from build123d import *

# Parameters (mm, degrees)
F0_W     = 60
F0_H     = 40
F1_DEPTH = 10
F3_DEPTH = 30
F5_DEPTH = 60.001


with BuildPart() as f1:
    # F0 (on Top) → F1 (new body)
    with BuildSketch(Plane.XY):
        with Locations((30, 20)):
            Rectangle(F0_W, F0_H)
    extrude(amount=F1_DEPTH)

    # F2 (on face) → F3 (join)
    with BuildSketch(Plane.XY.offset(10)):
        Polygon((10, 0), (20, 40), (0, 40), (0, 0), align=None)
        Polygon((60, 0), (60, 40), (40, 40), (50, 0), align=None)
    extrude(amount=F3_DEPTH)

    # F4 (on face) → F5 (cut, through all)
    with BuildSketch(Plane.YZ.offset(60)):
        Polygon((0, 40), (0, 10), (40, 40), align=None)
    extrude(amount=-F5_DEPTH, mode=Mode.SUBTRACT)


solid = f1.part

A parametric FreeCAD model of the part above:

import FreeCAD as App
import Part
import Sketcher

V = App.Vector
Q = App.Units.Quantity

doc = App.newDocument("Part")
body = doc.addObject("PartDesign::Body", "Body")

# Sketch on XY plane
sketch1 = body.newObject("Sketcher::SketchObject", "Sketch")
sketch1.AttachmentSupport = (doc.getObject("XY_Plane"), [""])
sketch1.MapMode = "FlatFace"
sketch1.addGeometry(Part.LineSegment(V(0, 40, 0), V(0, 0, 0)), False)
sketch1.addGeometry(Part.LineSegment(V(0, 0, 0), V(60, 0, 0)), False)
sketch1.addGeometry(Part.LineSegment(V(60, 0, 0), V(60, 40, 0)), False)
sketch1.addGeometry(Part.LineSegment(V(60, 40, 0), V(0, 40, 0)), False)
sketch1.addConstraint(Sketcher.Constraint("Coincident", 0, 2, 1, 1))
sketch1.addConstraint(Sketcher.Constraint("Coincident", 1, 2, 2, 1))
sketch1.addConstraint(Sketcher.Constraint("Coincident", 2, 2, 3, 1))
sketch1.addConstraint(Sketcher.Constraint("Coincident", 3, 2, 0, 1))
sketch1.addConstraint(Sketcher.Constraint("Vertical", 0))
sketch1.addConstraint(Sketcher.Constraint("Horizontal", 1))
sketch1.addConstraint(Sketcher.Constraint("Vertical", 2))
sketch1.addConstraint(Sketcher.Constraint("Horizontal", 3))
sketch1.addConstraint(Sketcher.Constraint("Coincident", 0, 2, -1, 1))
sketch1.addConstraint(Sketcher.Constraint("DistanceX", 1, 1, 1, 2, Q("60 mm")))
sketch1.addConstraint(Sketcher.Constraint("DistanceY", 0, 2, 0, 1, Q("40 mm")))
pad1 = body.newObject("PartDesign::Pad", "Pad")
pad1.Profile = sketch1
pad1.Length = 10

# Sketch on XY plane
sketch2 = body.newObject("Sketcher::SketchObject", "Sketch001")
sketch2.AttachmentSupport = (doc.getObject("XY_Plane"), [""])
sketch2.MapMode = "FlatFace"
sketch2.AttachmentOffset = App.Placement(V(0, 0, 10), App.Rotation())
sketch2.addGeometry(Part.LineSegment(V(10, 0, 0), V(20, 40, 0)), False)
sketch2.addGeometry(Part.LineSegment(V(20, 40, 0), V(0, 40, 0)), False)
sketch2.addGeometry(Part.LineSegment(V(0, 40, 0), V(0, 0, 0)), False)
sketch2.addGeometry(Part.LineSegment(V(0, 0, 0), V(10, 0, 0)), False)
sketch2.addGeometry(Part.LineSegment(V(60, 0, 0), V(60, 40, 0)), False)
sketch2.addGeometry(Part.LineSegment(V(60, 40, 0), V(40, 40, 0)), False)
sketch2.addGeometry(Part.LineSegment(V(40, 40, 0), V(50, 0, 0)), False)
sketch2.addGeometry(Part.LineSegment(V(50, 0, 0), V(60, 0, 0)), False)
sketch2.addConstraint(Sketcher.Constraint("Coincident", 0, 2, 1, 1))
sketch2.addConstraint(Sketcher.Constraint("Coincident", 1, 2, 2, 1))
sketch2.addConstraint(Sketcher.Constraint("Coincident", 2, 2, 3, 1))
sketch2.addConstraint(Sketcher.Constraint("Coincident", 3, 2, 0, 1))
sketch2.addConstraint(Sketcher.Constraint("Coincident", 4, 2, 5, 1))
sketch2.addConstraint(Sketcher.Constraint("Coincident", 5, 2, 6, 1))
sketch2.addConstraint(Sketcher.Constraint("Coincident", 6, 2, 7, 1))
sketch2.addConstraint(Sketcher.Constraint("Coincident", 7, 2, 4, 1))
sketch2.addConstraint(Sketcher.Constraint("Horizontal", 1))
sketch2.addConstraint(Sketcher.Constraint("Vertical", 2))
sketch2.addConstraint(Sketcher.Constraint("Horizontal", 3))
sketch2.addConstraint(Sketcher.Constraint("Vertical", 4))
sketch2.addConstraint(Sketcher.Constraint("Horizontal", 5))
sketch2.addConstraint(Sketcher.Constraint("Horizontal", 7))
sketch2.addConstraint(Sketcher.Constraint("Coincident", 2, 2, -1, 1))
sketch2.addConstraint(Sketcher.Constraint("PointOnObject", 6, 2, -1))
sketch2.addConstraint(Sketcher.Constraint("Horizontal", 1, 2, 4, 2))
sketch2.addConstraint(Sketcher.Constraint("Equal", 1, 5))
sketch2.addConstraint(Sketcher.Constraint("Equal", 3, 7))
sketch2.addConstraint(Sketcher.Constraint("DistanceX", 1, 2, 1, 1, Q("20 mm")))
sketch2.addConstraint(Sketcher.Constraint("DistanceX", 3, 1, 3, 2, Q("10 mm")))
sketch2.addConstraint(Sketcher.Constraint("DistanceY", 2, 2, 2, 1, Q("40 mm")))
sketch2.addConstraint(Sketcher.Constraint("DistanceX", -1, 1, 4, 2, Q("60 mm")))
pad2 = body.newObject("PartDesign::Pad", "Pad001")
pad2.Profile = sketch2
pad2.Length = 30

# Sketch on YZ plane
sketch3 = body.newObject("Sketcher::SketchObject", "Sketch002")
sketch3.AttachmentSupport = (doc.getObject("YZ_Plane"), [""])
sketch3.MapMode = "FlatFace"
sketch3.AttachmentOffset = App.Placement(V(0, 0, 60), App.Rotation())
sketch3.addGeometry(Part.LineSegment(V(0, 40, 0), V(0, 10, 0)), False)
sketch3.addGeometry(Part.LineSegment(V(0, 10, 0), V(40, 40, 0)), False)
sketch3.addGeometry(Part.LineSegment(V(40, 40, 0), V(0, 40, 0)), False)
sketch3.addConstraint(Sketcher.Constraint("Coincident", 0, 2, 1, 1))
sketch3.addConstraint(Sketcher.Constraint("Coincident", 1, 2, 2, 1))
sketch3.addConstraint(Sketcher.Constraint("Coincident", 2, 2, 0, 1))
sketch3.addConstraint(Sketcher.Constraint("Vertical", 0))
sketch3.addConstraint(Sketcher.Constraint("Horizontal", 2))
sketch3.addConstraint(Sketcher.Constraint("PointOnObject", 0, 2, -2))
sketch3.addConstraint(Sketcher.Constraint("DistanceX", 2, 2, 2, 1, Q("40 mm")))
sketch3.addConstraint(Sketcher.Constraint("DistanceY", 0, 2, 0, 1, Q("30 mm")))
sketch3.addConstraint(Sketcher.Constraint("DistanceY", -1, 1, 0, 2, Q("10 mm")))
pocket1 = body.newObject("PartDesign::Pocket", "Pocket")
pocket1.Profile = sketch3
pocket1.Type = "ThroughAll"

doc.recompute()
